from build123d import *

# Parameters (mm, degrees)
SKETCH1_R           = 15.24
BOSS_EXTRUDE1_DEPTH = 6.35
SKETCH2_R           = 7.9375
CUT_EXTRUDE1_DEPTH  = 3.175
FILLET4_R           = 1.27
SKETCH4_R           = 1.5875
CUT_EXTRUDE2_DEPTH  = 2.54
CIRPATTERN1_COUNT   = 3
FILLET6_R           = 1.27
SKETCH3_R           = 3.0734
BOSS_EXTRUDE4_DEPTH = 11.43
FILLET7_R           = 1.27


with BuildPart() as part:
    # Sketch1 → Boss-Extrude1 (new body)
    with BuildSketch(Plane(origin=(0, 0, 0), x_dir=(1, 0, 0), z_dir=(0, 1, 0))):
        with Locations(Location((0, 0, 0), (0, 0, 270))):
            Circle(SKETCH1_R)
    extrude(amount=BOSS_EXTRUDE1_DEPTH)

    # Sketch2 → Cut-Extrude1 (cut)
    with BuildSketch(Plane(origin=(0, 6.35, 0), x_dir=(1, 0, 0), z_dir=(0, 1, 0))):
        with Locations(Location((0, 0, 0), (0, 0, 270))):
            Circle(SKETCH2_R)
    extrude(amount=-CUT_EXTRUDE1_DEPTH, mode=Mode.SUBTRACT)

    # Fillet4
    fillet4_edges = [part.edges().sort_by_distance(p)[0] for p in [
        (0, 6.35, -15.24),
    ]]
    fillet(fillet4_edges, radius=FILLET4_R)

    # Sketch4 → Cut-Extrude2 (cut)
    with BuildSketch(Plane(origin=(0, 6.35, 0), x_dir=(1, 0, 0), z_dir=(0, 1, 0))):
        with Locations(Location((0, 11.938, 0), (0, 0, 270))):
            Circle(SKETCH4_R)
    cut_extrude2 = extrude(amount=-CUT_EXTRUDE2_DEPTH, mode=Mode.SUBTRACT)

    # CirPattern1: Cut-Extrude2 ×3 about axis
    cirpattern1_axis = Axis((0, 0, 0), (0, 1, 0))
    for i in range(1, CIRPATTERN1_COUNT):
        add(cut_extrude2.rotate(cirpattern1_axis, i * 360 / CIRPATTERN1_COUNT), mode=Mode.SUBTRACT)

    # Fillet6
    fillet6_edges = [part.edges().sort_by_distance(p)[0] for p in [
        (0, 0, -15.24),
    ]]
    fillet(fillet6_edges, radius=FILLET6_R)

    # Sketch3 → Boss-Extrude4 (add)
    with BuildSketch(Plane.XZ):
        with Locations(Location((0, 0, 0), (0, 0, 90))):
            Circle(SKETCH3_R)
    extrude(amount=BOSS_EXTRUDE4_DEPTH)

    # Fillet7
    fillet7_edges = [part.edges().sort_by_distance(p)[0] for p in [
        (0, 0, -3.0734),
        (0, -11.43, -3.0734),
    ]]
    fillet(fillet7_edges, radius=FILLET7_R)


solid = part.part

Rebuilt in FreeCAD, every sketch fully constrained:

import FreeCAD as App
import Part
import Sketcher

V = App.Vector
Q = App.Units.Quantity


def edges_at(feature, points):
    """Names of the edges that pass closest to the given points."""
    edges = feature.Shape.Edges
    near = lambda p: min(range(len(edges)), key=lambda i: edges[i].distToShape(Part.Vertex(*p))[0])
    return sorted({f"Edge{near(p) + 1}" for p in points})

doc = App.newDocument("Part")
body = doc.addObject("PartDesign::Body", "Body")

sketch1 = body.newObject("Sketcher::SketchObject", "Sketch")
sketch1.AttachmentSupport = (doc.getObject("XZ_Plane"), [""])
sketch1.MapMode = "FlatFace"
sketch1.addGeometry(Part.Circle(V(0, 0, 0), V(0, 0, 1), 15), False)
sketch1.addConstraint([
    Sketcher.Constraint("Coincident", 0, 3, -1, 1),
    Sketcher.Constraint("Diameter", 0, Q("1.2 in")),
])
pad1 = body.newObject("PartDesign::Pad", "Pad")
pad1.Profile = sketch1
pad1.Length = Q("0.25 in")
pad1.Reversed = True

sketch2 = body.newObject("Sketcher::SketchObject", "Sketch001")
sketch2.AttachmentSupport = (doc.getObject("XZ_Plane"), [""])
sketch2.MapMode = "FlatFace"
sketch2.AttachmentOffset = App.Placement(V(0, 0, -0.25 * 25.4), App.Rotation())
sketch2.addGeometry(Part.Circle(V(0, 0, 0), V(0, 0, 1), 8), False)
sketch2.addConstraint([
    Sketcher.Constraint("Coincident", 0, 3, -1, 1),
    Sketcher.Constraint("Diameter", 0, Q("0.625 in")),
])
pocket1 = body.newObject("PartDesign::Pocket", "Pocket")
pocket1.Profile = sketch2
pocket1.Length = Q("0.125 in")
pocket1.Reversed = True
doc.recompute()

fillet = body.newObject("PartDesign::Fillet", "Fillet")
fillet.Base = (pocket1, edges_at(pocket1, [(0, 6.35, -15.24)]))
fillet.Radius = Q("0.05 in")

sketch3 = body.newObject("Sketcher::SketchObject", "Sketch002")
sketch3.AttachmentSupport = (doc.getObject("XZ_Plane"), [""])
sketch3.MapMode = "FlatFace"
sketch3.AttachmentOffset = App.Placement(V(0, 0, -0.25 * 25.4), App.Rotation())
sketch3.addGeometry(Part.Circle(V(0, -11.9, 0), V(0, 0, 1), 1.6), False)
sketch3.addConstraint([
    Sketcher.Constraint("PointOnObject", 0, 3, -2),
    Sketcher.Constraint("Diameter", 0, Q("0.125 in")),
    Sketcher.Constraint("DistanceY", 0, 3, -1, 1, Q("0.47 in")),
])
pocket2 = body.newObject("PartDesign::Pocket", "Pocket001")
pocket2.Profile = sketch3
pocket2.Length = Q("0.1 in")
pocket2.Reversed = True
doc.recompute()

polarpattern = body.newObject("PartDesign::PolarPattern", "PolarPattern")
polarpattern.Originals = [pocket2]
polarpattern.Axis = (doc.getObject("Y_Axis"), [""])
polarpattern.Angle = 360
polarpattern.Occurrences = 3
body.Tip = polarpattern
doc.recompute()

fillet2 = body.newObject("PartDesign::Fillet", "Fillet001")
fillet2.Base = (polarpattern, edges_at(polarpattern, [(0, 0, -15.24)]))
fillet2.Radius = Q("0.05 in")

sketch4 = body.newObject("Sketcher::SketchObject", "Sketch003")
sketch4.AttachmentSupport = (doc.getObject("XZ_Plane"), [""])
sketch4.MapMode = "FlatFace"
sketch4.addGeometry(Part.Circle(V(0, 0, 0), V(0, 0, 1), 3.1), False)
sketch4.addConstraint([
    Sketcher.Constraint("Coincident", 0, 3, -1, 1),
    Sketcher.Constraint("Diameter", 0, Q("0.242 in")),
])
pad2 = body.newObject("PartDesign::Pad", "Pad001")
pad2.Profile = sketch4
pad2.Length = Q("0.45 in")
doc.recompute()

fillet3 = body.newObject("PartDesign::Fillet", "Fillet002")
fillet3.Base = (pad2, edges_at(pad2, [(0, 0, -3.073), (0, -11.43, -3.073)]))
fillet3.Radius = Q("0.05 in")

doc.recompute()
